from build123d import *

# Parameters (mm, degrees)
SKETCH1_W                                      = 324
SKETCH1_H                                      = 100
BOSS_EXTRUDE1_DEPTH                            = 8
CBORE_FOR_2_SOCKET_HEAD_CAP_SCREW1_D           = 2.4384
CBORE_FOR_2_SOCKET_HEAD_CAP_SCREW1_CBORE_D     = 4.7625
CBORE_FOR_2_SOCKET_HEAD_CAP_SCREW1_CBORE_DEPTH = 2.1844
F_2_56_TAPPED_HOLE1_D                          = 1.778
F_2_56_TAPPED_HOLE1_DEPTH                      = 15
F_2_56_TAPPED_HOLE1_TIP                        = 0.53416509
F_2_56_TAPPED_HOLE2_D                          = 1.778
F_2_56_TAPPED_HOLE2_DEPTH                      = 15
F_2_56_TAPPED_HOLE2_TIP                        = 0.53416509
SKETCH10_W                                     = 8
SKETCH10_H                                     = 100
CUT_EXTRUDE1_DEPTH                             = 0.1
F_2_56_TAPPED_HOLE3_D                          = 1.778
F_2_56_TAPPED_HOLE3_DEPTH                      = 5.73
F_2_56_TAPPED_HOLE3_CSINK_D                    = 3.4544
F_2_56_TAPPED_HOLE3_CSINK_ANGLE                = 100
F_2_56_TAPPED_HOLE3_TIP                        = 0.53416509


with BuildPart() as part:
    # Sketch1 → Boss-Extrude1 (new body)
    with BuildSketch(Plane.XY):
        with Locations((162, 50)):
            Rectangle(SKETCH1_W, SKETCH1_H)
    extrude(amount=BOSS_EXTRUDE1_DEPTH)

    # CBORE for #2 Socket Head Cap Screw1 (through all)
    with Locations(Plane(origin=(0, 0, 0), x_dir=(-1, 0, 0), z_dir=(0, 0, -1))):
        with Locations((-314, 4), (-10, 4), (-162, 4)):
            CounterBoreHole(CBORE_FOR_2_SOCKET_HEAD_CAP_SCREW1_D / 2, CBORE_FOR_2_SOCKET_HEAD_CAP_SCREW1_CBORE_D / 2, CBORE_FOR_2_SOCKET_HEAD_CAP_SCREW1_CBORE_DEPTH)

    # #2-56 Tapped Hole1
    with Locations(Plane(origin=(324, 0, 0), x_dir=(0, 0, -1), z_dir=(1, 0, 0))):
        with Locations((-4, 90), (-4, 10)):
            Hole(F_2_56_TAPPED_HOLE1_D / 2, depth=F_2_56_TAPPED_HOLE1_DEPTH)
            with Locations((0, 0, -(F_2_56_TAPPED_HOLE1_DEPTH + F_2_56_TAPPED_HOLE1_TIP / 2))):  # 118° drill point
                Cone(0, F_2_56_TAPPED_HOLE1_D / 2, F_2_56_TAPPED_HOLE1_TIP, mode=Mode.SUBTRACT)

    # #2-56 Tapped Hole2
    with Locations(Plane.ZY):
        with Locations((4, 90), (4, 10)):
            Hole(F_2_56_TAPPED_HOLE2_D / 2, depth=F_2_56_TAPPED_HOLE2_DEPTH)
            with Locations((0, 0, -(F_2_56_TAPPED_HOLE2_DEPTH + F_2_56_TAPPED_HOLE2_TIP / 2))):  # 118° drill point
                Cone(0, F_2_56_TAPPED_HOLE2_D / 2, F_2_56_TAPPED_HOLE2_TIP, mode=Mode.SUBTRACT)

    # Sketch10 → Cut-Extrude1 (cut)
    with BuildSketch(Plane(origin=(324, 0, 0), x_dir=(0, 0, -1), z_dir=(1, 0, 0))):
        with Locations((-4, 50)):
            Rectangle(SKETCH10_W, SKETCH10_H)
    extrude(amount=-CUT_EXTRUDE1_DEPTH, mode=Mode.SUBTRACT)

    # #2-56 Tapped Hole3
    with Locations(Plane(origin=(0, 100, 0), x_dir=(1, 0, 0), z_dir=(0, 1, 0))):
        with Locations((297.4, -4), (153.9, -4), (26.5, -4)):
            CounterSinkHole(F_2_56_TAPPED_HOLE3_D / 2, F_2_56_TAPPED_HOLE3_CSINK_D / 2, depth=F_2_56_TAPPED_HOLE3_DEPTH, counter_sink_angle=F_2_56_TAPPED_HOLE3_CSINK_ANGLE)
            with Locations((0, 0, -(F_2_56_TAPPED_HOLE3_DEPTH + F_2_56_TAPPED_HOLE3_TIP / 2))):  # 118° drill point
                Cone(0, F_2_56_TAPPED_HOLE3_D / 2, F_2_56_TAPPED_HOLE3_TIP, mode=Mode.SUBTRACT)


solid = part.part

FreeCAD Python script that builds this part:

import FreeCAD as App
import Part
import Sketcher


def add_polygon(sketch, points):
    """Adds a closed chain of lines whose ends are joined by coincident constraints."""
    first, n = sketch.GeometryCount, len(points)
    for a, b in zip(points, points[1:] + points[:1]):
        sketch.addGeometry(Part.LineSegment(App.Vector(*a, 0), App.Vector(*b, 0)), False)
    for i in range(n):
        sketch.addConstraint(Sketcher.Constraint("Coincident", first + i, 2, first + (i + 1) % n, 1))

doc = App.newDocument("Part")
body = doc.addObject("PartDesign::Body", "Body")

sketch1 = doc.addObject("Sketcher::SketchObject", "Sketch")
body.addObject(sketch1)
sketch1.AttachmentSupport = (doc.XY_Plane, [""])
sketch1.MapMode = "FlatFace"
add_polygon(sketch1, [(0, 100), (0, 0), (324, 0), (324, 100)])
sketch1.addConstraint([
    Sketcher.Constraint("Vertical", 0),
    Sketcher.Constraint("Horizontal", 1),
    Sketcher.Constraint("Vertical", 2),
    Sketcher.Constraint("Horizontal", 3),
    Sketcher.Constraint("Coincident", 0, 2, -1, 1),
    Sketcher.Constraint("DistanceX", 1, 1, 1, 2, 324.0),
    Sketcher.Constraint("DistanceY", 0, 2, 0, 1, 100.0),
])
pad1 = doc.addObject("PartDesign::Pad", "Pad")
body.addObject(pad1)
pad1.Profile = sketch1
pad1.Length = 8

sketch2 = doc.addObject("Sketcher::SketchObject", "Sketch001")
body.addObject(sketch2)
sketch2.AttachmentSupport = (doc.XY_Plane, [""])
sketch2.MapMode = "FlatFace"
sketch2.addGeometry([
    Part.Circle(App.Vector(314, 4, 0), App.Vector(0, 0, 1), 1.2),
    Part.Circle(App.Vector(10, 4, 0), App.Vector(0, 0, 1), 1.2),
    Part.Circle(App.Vector(162, 4, 0), App.Vector(0, 0, 1), 1.2),
], False)
sketch2.addConstraint([
    Sketcher.Constraint("Equal", 0, 1),
    Sketcher.Constraint("Equal", 1, 2),
    Sketcher.Constraint("Horizontal", 0, 3, 1, 3),
    Sketcher.Constraint("Horizontal", 1, 3, 2, 3),
    Sketcher.Constraint("DistanceX", -1, 1, 0, 3, 314.0),
    Sketcher.Constraint("DistanceY", -1, 1, 0, 3, 4.0),
    Sketcher.Constraint("DistanceX", -1, 1, 1, 3, 10.0),
    Sketcher.Constraint("DistanceX", -1, 1, 2, 3, 162.0),
    Sketcher.Constraint("Diameter", 0, 2.4384),
])
doc.recompute()
hole = doc.addObject("PartDesign::Hole", "Hole")
body.addObject(hole)
hole.Profile = sketch2
hole.ThreadType = "None"
hole.Diameter = 2.4384
hole.DepthType = "ThroughAll"
hole.HoleCutType = "Counterbore"
hole.HoleCutDiameter = 4.7625
hole.HoleCutDepth = 2.1844
hole.Reversed = True

sketch3 = doc.addObject("Sketcher::SketchObject", "Sketch002")
body.addObject(sketch3)
sketch3.AttachmentSupport = (doc.YZ_Plane, [""])
sketch3.MapMode = "FlatFace"
sketch3.AttachmentOffset = App.Placement(App.Vector(0, 0, 324), App.Rotation())
sketch3.addGeometry([
    Part.Circle(App.Vector(90, 4, 0), App.Vector(0, 0, 1), 0.9),
    Part.Circle(App.Vector(10, 4, 0), App.Vector(0, 0, 1), 0.9),
], False)
sketch3.addConstraint([
    Sketcher.Constraint("Equal", 0, 1),
    Sketcher.Constraint("Horizontal", 0, 3, 1, 3),
    Sketcher.Constraint("Diameter", 0, 1.778),
    Sketcher.Constraint("DistanceX", -1, 1, 0, 3, 90.0),
    Sketcher.Constraint("DistanceY", -1, 1, 0, 3, 4.0),
    Sketcher.Constraint("DistanceX", -1, 1, 1, 3, 10.0),
])
doc.recompute()
hole2 = doc.addObject("PartDesign::Hole", "Hole001")
body.addObject(hole2)
hole2.Profile = sketch3
hole2.ThreadType = "None"
hole2.Diameter = 1.778
hole2.DepthType = "Dimension"
hole2.Depth = 15
hole2.DrillPoint = "Angled"
hole2.DrillPointAngle = 118

sketch4 = doc.addObject("Sketcher::SketchObject", "Sketch003")
body.addObject(sketch4)
sketch4.AttachmentSupport = (doc.YZ_Plane, [""])
sketch4.MapMode = "FlatFace"
sketch4.addGeometry([
    Part.Circle(App.Vector(90, 4, 0), App.Vector(0, 0, 1), 0.9),
    Part.Circle(App.Vector(10, 4, 0), App.Vector(0, 0, 1), 0.9),
], False)
sketch4.addConstraint([
    Sketcher.Constraint("Equal", 0, 1),
    Sketcher.Constraint("Horizontal", 0, 3, 1, 3),
    Sketcher.Constraint("Diameter", 0, 1.778),
    Sketcher.Constraint("DistanceX", -1, 1, 0, 3, 90.0),
    Sketcher.Constraint("DistanceY", -1, 1, 0, 3, 4.0),
    Sketcher.Constraint("DistanceX", -1, 1, 1, 3, 10.0),
])
doc.recompute()
hole3 = doc.addObject("PartDesign::Hole", "Hole002")
body.addObject(hole3)
hole3.Profile = sketch4
hole3.ThreadType = "None"
hole3.Diameter = 1.778
hole3.DepthType = "Dimension"
hole3.Depth = 15
hole3.DrillPoint = "Angled"
hole3.DrillPointAngle = 118
hole3.Reversed = True

sketch5 = doc.addObject("Sketcher::SketchObject", "Sketch004")
body.addObject(sketch5)
sketch5.AttachmentSupport = (doc.YZ_Plane, [""])
sketch5.MapMode = "FlatFace"
sketch5.AttachmentOffset = App.Placement(App.Vector(0, 0, 324), App.Rotation())
add_polygon(sketch5, [(100, 8), (0, 8), (0, 0), (100, 0)])
sketch5.addConstraint([
    Sketcher.Constraint("Horizontal", 0),
    Sketcher.Constraint("Vertical", 1),
    Sketcher.Constraint("Horizontal", 2),
    Sketcher.Constraint("Vertical", 3),
    Sketcher.Constraint("Coincident", 1, 2, -1, 1),
    Sketcher.Constraint("DistanceX", 0, 2, 0, 1, 100.0),
    Sketcher.Constraint("DistanceY", 1, 2, 1, 1, 8.0),
])
pocket1 = doc.addObject("PartDesign::Pocket", "Pocket")
body.addObject(pocket1)
pocket1.Profile = sketch5
pocket1.Length = 0.1

sketch6 = doc.addObject("Sketcher::SketchObject", "Sketch005")
body.addObject(sketch6)
sketch6.AttachmentSupport = (doc.XZ_Plane, [""])
sketch6.MapMode = "FlatFace"
sketch6.AttachmentOffset = App.Placement(App.Vector(0, 0, -100), App.Rotation())
sketch6.addGeometry([
    Part.Circle(App.Vector(297.4, 4, 0), App.Vector(0, 0, 1), 0.9),
    Part.Circle(App.Vector(153.9, 4, 0), App.Vector(0, 0, 1), 0.9),
    Part.Circle(App.Vector(26.5, 4, 0), App.Vector(0, 0, 1), 0.9),
], False)
sketch6.addConstraint([
    Sketcher.Constraint("Equal", 0, 1),
    Sketcher.Constraint("Equal", 1, 2),
    Sketcher.Constraint("Horizontal", 0, 3, 1, 3),
    Sketcher.Constraint("Horizontal", 1, 3, 2, 3),
    Sketcher.Constraint("Diameter", 0, 1.778),
    Sketcher.Constraint("DistanceY", -1, 1, 0, 3, 4.0),
    Sketcher.Constraint("DistanceX", -1, 1, 0, 3, 297.4),
    Sketcher.Constraint("DistanceX", -1, 1, 1, 3, 153.9),
    Sketcher.Constraint("DistanceX", -1, 1, 2, 3, 26.5),
])
doc.recompute()
hole4 = doc.addObject("PartDesign::Hole", "Hole003")
body.addObject(hole4)
hole4.Profile = sketch6
hole4.ThreadType = "None"
hole4.Diameter = 1.778
hole4.DepthType = "Dimension"
hole4.Depth = 5.73
hole4.DrillPoint = "Angled"
hole4.DrillPointAngle = 118
hole4.HoleCutType = "Countersink"
hole4.HoleCutDiameter = 3.4544
hole4.HoleCutCountersinkAngle = 100
hole4.Reversed = True

doc.recompute()
